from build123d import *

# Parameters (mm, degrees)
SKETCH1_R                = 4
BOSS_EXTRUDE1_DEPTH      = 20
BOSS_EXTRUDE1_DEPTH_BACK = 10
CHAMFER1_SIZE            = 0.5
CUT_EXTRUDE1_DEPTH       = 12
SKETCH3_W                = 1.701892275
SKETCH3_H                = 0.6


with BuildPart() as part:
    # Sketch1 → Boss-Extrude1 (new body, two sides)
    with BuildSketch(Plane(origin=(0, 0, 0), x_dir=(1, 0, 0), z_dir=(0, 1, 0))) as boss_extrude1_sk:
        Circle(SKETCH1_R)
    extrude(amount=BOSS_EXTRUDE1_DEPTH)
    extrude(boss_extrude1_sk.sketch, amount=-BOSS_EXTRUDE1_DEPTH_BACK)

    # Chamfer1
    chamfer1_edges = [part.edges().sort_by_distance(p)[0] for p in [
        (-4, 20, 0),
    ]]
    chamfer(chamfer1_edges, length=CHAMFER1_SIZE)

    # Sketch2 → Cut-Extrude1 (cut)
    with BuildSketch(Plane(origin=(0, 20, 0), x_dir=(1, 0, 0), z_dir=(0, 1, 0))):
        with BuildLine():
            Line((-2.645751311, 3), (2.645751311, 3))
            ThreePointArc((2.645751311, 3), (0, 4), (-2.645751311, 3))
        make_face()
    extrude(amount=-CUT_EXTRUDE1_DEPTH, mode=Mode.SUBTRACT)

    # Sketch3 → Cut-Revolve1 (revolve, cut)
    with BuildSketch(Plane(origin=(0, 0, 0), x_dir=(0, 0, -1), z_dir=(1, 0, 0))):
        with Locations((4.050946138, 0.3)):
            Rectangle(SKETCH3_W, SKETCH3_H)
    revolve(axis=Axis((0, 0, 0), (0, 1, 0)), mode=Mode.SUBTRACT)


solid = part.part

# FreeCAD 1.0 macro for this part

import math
import FreeCAD as App
import Part
import Sketcher
Q = App.Units.Quantity


def edges_at(feature, points):
    """Names of the edges that pass closest to the given points."""
    edges = feature.Shape.Edges
    near = lambda p: min(range(len(edges)), key=lambda i: edges[i].distToShape(Part.Vertex(*p))[0])
    return sorted({f"Edge{near(p) + 1}" for p in points})


def add_polygon(sketch, points):
    """Adds a closed chain of lines whose ends are joined by coincident constraints."""
    first, n = sketch.GeometryCount, len(points)
    for a, b in zip(points, points[1:] + points[:1]):
        sketch.addGeometry(Part.LineSegment(App.Vector(*a, 0), App.Vector(*b, 0)), False)
    for i in range(n):
        sketch.addConstraint(Sketcher.Constraint("Coincident", first + i, 2, first + (i + 1) % n, 1))

doc = App.newDocument("Part")
body = doc.addObject("PartDesign::Body", "Body")

sketch1 = body.newObject("Sketcher::SketchObject", "Sketch")
sketch1.AttachmentSupport = (doc.getObject("XZ_Plane"), [""])
sketch1.MapMode = "FlatFace"
sketch1.addGeometry(Part.Circle(App.Vector(0, 0, 0), App.Vector(0, 0, 1), 4), False)
sketch1.addConstraint(Sketcher.Constraint("Coincident", 0, 3, -1, 1))
sketch1.addConstraint(Sketcher.Constraint("Diameter", 0, Q("8 mm")))
pad1 = body.newObject("PartDesign::Pad", "Pad")
pad1.Profile = sketch1
pad1.Type = "TwoLengths"
pad1.Length = 20
pad1.Length2 = 10
pad1.Reversed = True
doc.recompute()

chamfer = body.newObject("PartDesign::Chamfer", "Chamfer")
chamfer.Base = (pad1, edges_at(pad1, [(-4, 20, 0)]))
chamfer.Size = 0.5

sketch2 = body.newObject("Sketcher::SketchObject", "Sketch001")
sketch2.AttachmentSupport = (doc.getObject("XZ_Plane"), [""])
sketch2.MapMode = "FlatFace"
sketch2.AttachmentOffset = App.Placement(App.Vector(0, 0, -20), App.Rotation())
sketch2.addGeometry(Part.LineSegment(App.Vector(-2.6, -3, 0), App.Vector(2.6, -3, 0)), False)
sketch2.addGeometry(Part.ArcOfCircle(Part.Circle(App.Vector(0, 0, 0), App.Vector(0, 0, 1), 4), math.radians(-131), math.radians(-49)), False)
sketch2.addConstraint(Sketcher.Constraint("Coincident", 0, 1, 1, 1))
sketch2.addConstraint(Sketcher.Constraint("Coincident", 1, 2, 0, 2))
sketch2.addConstraint(Sketcher.Constraint("Horizontal", 0))
sketch2.addConstraint(Sketcher.Constraint("Coincident", 1, 3, -1, 1))
sketch2.addConstraint(Sketcher.Constraint("Radius", 1, Q("4 mm")))
sketch2.addConstraint(Sketcher.Constraint("DistanceY", 0, 1, -1, 1, Q("3 mm")))
pocket1 = body.newObject("PartDesign::Pocket", "Pocket")
pocket1.Profile = sketch2
pocket1.Length = 12
pocket1.Reversed = True

sketch3 = body.newObject("Sketcher::SketchObject", "Sketch002")
sketch3.AttachmentSupport = (doc.getObject("YZ_Plane"), [""])
sketch3.MapMode = "FlatFace"
add_polygon(sketch3, [(0.6, -3.2), (0, -3.2), (0, -4.9), (0.6, -4.9)])
sketch3.addConstraint(Sketcher.Constraint("Horizontal", 0))
sketch3.addConstraint(Sketcher.Constraint("Vertical", 1))
sketch3.addConstraint(Sketcher.Constraint("Horizontal", 2))
sketch3.addConstraint(Sketcher.Constraint("Vertical", 3))
sketch3.addConstraint(Sketcher.Constraint("PointOnObject", 0, 2, -2))
sketch3.addConstraint(Sketcher.Constraint("DistanceX", 0, 2, 0, 1, Q("0.6 mm")))
sketch3.addConstraint(Sketcher.Constraint("DistanceY", 0, 2, -1, 1, Q("3.2 mm")))
sketch3.addConstraint(Sketcher.Constraint("DistanceY", 1, 2, 1, 1, Q("1.701892 mm")))
groove = body.newObject("PartDesign::Groove", "Groove")
groove.Profile = sketch3
groove.ReferenceAxis = (sketch3, ["H_Axis"])
groove.Angle = 360

doc.recompute()
